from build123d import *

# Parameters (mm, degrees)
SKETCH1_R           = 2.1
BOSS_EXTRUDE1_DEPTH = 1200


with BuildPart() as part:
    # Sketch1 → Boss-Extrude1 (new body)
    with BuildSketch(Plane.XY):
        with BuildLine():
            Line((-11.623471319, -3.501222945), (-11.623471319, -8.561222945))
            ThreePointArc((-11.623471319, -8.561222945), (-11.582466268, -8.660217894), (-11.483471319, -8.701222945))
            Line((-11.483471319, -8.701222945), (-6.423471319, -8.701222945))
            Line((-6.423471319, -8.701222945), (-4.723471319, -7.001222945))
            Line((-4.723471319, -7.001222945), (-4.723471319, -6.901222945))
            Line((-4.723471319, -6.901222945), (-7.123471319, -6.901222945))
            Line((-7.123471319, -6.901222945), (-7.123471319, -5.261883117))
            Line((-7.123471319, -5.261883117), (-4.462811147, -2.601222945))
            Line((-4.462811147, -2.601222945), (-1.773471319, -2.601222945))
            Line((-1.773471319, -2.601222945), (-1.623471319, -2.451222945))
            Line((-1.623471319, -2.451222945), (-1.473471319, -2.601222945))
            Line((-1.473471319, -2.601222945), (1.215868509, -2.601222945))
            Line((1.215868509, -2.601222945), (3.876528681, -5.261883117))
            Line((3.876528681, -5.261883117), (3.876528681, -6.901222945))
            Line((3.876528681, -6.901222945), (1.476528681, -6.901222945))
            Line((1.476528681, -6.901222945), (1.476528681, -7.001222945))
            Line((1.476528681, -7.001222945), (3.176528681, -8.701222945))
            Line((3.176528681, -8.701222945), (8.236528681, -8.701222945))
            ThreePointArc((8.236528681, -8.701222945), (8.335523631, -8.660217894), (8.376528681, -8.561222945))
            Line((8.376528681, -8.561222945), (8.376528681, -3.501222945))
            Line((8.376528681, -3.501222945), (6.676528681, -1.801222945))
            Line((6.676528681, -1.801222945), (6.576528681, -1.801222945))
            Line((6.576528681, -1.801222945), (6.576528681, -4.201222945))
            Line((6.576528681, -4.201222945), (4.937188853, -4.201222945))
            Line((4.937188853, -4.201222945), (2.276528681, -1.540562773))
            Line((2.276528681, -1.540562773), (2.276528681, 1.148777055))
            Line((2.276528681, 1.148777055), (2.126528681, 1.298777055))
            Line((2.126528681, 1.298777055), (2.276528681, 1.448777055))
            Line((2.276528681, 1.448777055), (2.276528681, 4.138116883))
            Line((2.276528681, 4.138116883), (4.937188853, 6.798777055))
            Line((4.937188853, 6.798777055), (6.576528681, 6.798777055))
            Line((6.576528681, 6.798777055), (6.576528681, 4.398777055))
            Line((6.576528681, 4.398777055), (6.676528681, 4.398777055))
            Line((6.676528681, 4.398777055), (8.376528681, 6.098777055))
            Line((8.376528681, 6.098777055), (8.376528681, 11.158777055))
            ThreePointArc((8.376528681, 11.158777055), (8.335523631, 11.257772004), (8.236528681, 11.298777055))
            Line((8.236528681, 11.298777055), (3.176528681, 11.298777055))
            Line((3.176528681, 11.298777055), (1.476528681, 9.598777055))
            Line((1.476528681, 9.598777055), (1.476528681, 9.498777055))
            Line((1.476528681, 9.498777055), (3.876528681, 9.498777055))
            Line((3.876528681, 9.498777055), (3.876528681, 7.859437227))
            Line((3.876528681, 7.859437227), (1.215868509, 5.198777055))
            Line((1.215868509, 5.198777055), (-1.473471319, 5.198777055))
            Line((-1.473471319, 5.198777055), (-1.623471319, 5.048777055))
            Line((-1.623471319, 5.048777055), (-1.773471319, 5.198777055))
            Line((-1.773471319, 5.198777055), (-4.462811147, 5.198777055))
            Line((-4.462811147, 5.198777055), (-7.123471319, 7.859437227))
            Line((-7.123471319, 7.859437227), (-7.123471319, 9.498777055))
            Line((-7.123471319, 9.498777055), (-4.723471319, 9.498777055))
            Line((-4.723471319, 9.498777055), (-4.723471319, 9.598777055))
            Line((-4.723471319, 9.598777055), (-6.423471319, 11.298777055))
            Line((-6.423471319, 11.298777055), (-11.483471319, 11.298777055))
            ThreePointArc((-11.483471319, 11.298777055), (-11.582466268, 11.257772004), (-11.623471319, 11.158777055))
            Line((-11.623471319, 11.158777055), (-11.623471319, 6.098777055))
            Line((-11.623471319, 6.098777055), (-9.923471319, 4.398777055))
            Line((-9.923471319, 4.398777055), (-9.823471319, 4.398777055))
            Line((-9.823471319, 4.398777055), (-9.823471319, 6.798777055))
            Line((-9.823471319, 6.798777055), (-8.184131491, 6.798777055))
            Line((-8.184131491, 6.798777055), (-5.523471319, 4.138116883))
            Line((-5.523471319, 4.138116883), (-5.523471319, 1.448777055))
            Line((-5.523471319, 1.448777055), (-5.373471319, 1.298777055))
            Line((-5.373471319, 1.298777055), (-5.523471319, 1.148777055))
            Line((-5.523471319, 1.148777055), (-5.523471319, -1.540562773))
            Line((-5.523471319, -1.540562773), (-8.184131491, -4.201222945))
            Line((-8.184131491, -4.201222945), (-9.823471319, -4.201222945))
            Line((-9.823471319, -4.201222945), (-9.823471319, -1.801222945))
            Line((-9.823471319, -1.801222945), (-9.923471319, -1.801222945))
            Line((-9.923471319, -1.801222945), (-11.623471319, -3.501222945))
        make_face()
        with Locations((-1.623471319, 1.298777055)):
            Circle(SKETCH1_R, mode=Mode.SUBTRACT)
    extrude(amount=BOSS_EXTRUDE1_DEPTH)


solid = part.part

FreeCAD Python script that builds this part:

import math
import FreeCAD as App
import Part
import Sketcher

V = App.Vector
Q = App.Units.Quantity

doc = App.newDocument("Part")
params = doc.addObject("Spreadsheet::Sheet", "Params")
for row, (alias, value) in enumerate([
    ("sketch1_diameter", "4.2 mm"),
    ("sketch1_radius", "0.14 mm"),
    ("sketch1_width", "2.4 mm"),
    ("sketch1_width2", "0.1 mm"),
    ("sketch1_width3", "5.06 mm"),
    ("pad1_length", "1200 mm"),
], start=1):
    params.set(f"A{row}", alias)
    params.set(f"B{row}", "=" + value)
    params.setAlias(f"B{row}", alias)

body = doc.addObject("PartDesign::Body", "Body")

# Sketch on XY plane
sketch1 = body.newObject("Sketcher::SketchObject", "Sketch")
sketch1.AttachmentSupport = (doc.getObject("XY_Plane"), [""])
sketch1.MapMode = "FlatFace"
sketch1.addGeometry(Part.LineSegment(V(-11.623471, -3.501223, 0), V(-11.623471, -8.561223, 0)), False)
sketch1.addGeometry(Part.ArcOfCircle(Part.Circle(V(-11.483471, -8.561223, 0), V(0, 0, 1), 0.14), math.radians(-180), math.radians(-90)), False)
sketch1.addGeometry(Part.LineSegment(V(-11.483471, -8.701223, 0), V(-6.423471, -8.701223, 0)), False)
sketch1.addGeometry(Part.LineSegment(V(-6.423471, -8.701223, 0), V(-4.723471, -7.001223, 0)), False)
sketch1.addGeometry(Part.LineSegment(V(-4.723471, -7.001223, 0), V(-4.723471, -6.901223, 0)), False)
sketch1.addGeometry(Part.LineSegment(V(-4.723471, -6.901223, 0), V(-7.123471, -6.901223, 0)), False)
sketch1.addGeometry(Part.LineSegment(V(-7.123471, -6.901223, 0), V(-7.123471, -5.261883, 0)), False)
sketch1.addGeometry(Part.LineSegment(V(-7.123471, -5.261883, 0), V(-4.462811, -2.601223, 0)), False)
sketch1.addGeometry(Part.LineSegment(V(-4.462811, -2.601223, 0), V(-1.773471, -2.601223, 0)), False)
sketch1.addGeometry(Part.LineSegment(V(-1.773471, -2.601223, 0), V(-1.623471, -2.451223, 0)), False)
sketch1.addGeometry(Part.LineSegment(V(-1.623471, -2.451223, 0), V(-1.473471, -2.601223, 0)), False)
sketch1.addGeometry(Part.LineSegment(V(-1.473471, -2.601223, 0), V(1.215869, -2.601223, 0)), False)
sketch1.addGeometry(Part.LineSegment(V(1.215869, -2.601223, 0), V(3.876529, -5.261883, 0)), False)
sketch1.addGeometry(Part.LineSegment(V(3.876529, -5.261883, 0), V(3.876529, -6.901223, 0)), False)
sketch1.addGeometry(Part.LineSegment(V(3.876529, -6.901223, 0), V(1.476529, -6.901223, 0)), False)
sketch1.addGeometry(Part.LineSegment(V(1.476529, -6.901223, 0), V(1.476529, -7.001223, 0)), False)
sketch1.addGeometry(Part.LineSegment(V(1.476529, -7.001223, 0), V(3.176529, -8.701223, 0)), False)
sketch1.addGeometry(Part.LineSegment(V(3.176529, -8.701223, 0), V(8.236529, -8.701223, 0)), False)
sketch1.addGeometry(Part.ArcOfCircle(Part.Circle(V(8.236529, -8.561223, 0), V(0, 0, 1), 0.14), math.radians(-90), math.radians(0)), False)
sketch1.addGeometry(Part.LineSegment(V(8.376529, -8.561223, 0), V(8.376529, -3.501223, 0)), False)
sketch1.addGeometry(Part.LineSegment(V(8.376529, -3.501223, 0), V(6.676529, -1.801223, 0)), False)
sketch1.addGeometry(Part.LineSegment(V(6.676529, -1.801223, 0), V(6.576529, -1.801223, 0)), False)
sketch1.addGeometry(Part.LineSegment(V(6.576529, -1.801223, 0), V(6.576529, -4.201223, 0)), False)
sketch1.addGeometry(Part.LineSegment(V(6.576529, -4.201223, 0), V(4.937189, -4.201223, 0)), False)
sketch1.addGeometry(Part.LineSegment(V(4.937189, -4.201223, 0), V(2.276529, -1.540563, 0)), False)
sketch1.addGeometry(Part.LineSegment(V(2.276529, -1.540563, 0), V(2.276529, 1.148777, 0)), False)
sketch1.addGeometry(Part.LineSegment(V(2.276529, 1.148777, 0), V(2.126529, 1.298777, 0)), False)
sketch1.addGeometry(Part.LineSegment(V(2.126529, 1.298777, 0), V(2.276529, 1.448777, 0)), False)
sketch1.addGeometry(Part.LineSegment(V(2.276529, 1.448777, 0), V(2.276529, 4.138117, 0)), False)
sketch1.addGeometry(Part.LineSegment(V(2.276529, 4.138117, 0), V(4.937189, 6.798777, 0)), False)
sketch1.addGeometry(Part.LineSegment(V(4.937189, 6.798777, 0), V(6.576529, 6.798777, 0)), False)
sketch1.addGeometry(Part.LineSegment(V(6.576529, 6.798777, 0), V(6.576529, 4.398777, 0)), False)
sketch1.addGeometry(Part.LineSegment(V(6.576529, 4.398777, 0), V(6.676529, 4.398777, 0)), False)
sketch1.addGeometry(Part.LineSegment(V(6.676529, 4.398777, 0), V(8.376529, 6.098777, 0)), False)
sketch1.addGeometry(Part.LineSegment(V(8.376529, 6.098777, 0), V(8.376529, 11.158777, 0)), False)
sketch1.addGeometry(Part.ArcOfCircle(Part.Circle(V(8.236529, 11.158777, 0), V(0, 0, 1), 0.14), math.radians(0), math.radians(90)), False)
sketch1.addGeometry(Part.LineSegment(V(8.236529, 11.298777, 0), V(3.176529, 11.298777, 0)), False)
sketch1.addGeometry(Part.LineSegment(V(3.176529, 11.298777, 0), V(1.476529, 9.598777, 0)), False)
sketch1.addGeometry(Part.LineSegment(V(1.476529, 9.598777, 0), V(1.476529, 9.498777, 0)), False)
sketch1.addGeometry(Part.LineSegment(V(1.476529, 9.498777, 0), V(3.876529, 9.498777, 0)), False)
sketch1.addGeometry(Part.LineSegment(V(3.876529, 9.498777, 0), V(3.876529, 7.859437, 0)), False)
sketch1.addGeometry(Part.LineSegment(V(3.876529, 7.859437, 0), V(1.215869, 5.198777, 0)), False)
sketch1.addGeometry(Part.LineSegment(V(1.215869, 5.198777, 0), V(-1.473471, 5.198777, 0)), False)
sketch1.addGeometry(Part.LineSegment(V(-1.473471, 5.198777, 0), V(-1.623471, 5.048777, 0)), False)
sketch1.addGeometry(Part.LineSegment(V(-1.623471, 5.048777, 0), V(-1.773471, 5.198777, 0)), False)
sketch1.addGeometry(Part.LineSegment(V(-1.773471, 5.198777, 0), V(-4.462811, 5.198777, 0)), False)
sketch1.addGeometry(Part.LineSegment(V(-4.462811, 5.198777, 0), V(-7.123471, 7.859437, 0)), False)
sketch1.addGeometry(Part.LineSegment(V(-7.123471, 7.859437, 0), V(-7.123471, 9.498777, 0)), False)
sketch1.addGeometry(Part.LineSegment(V(-7.123471, 9.498777, 0), V(-4.723471, 9.498777, 0)), False)
sketch1.addGeometry(Part.LineSegment(V(-4.723471, 9.498777, 0), V(-4.723471, 9.598777, 0)), False)
sketch1.addGeometry(Part.LineSegment(V(-4.723471, 9.598777, 0), V(-6.423471, 11.298777, 0)), False)
sketch1.addGeometry(Part.LineSegment(V(-6.423471, 11.298777, 0), V(-11.483471, 11.298777, 0)), False)
sketch1.addGeometry(Part.ArcOfCircle(Part.Circle(V(-11.483471, 11.158777, 0), V(0, 0, 1), 0.14), math.radians(90), math.radians(180)), False)
sketch1.addGeometry(Part.LineSegment(V(-11.623471, 11.158777, 0), V(-11.623471, 6.098777, 0)), False)
sketch1.addGeometry(Part.LineSegment(V(-11.623471, 6.098777, 0), V(-9.923471, 4.398777, 0)), False)
sketch1.addGeometry(Part.LineSegment(V(-9.923471, 4.398777, 0), V(-9.823471, 4.398777, 0)), False)
sketch1.addGeometry(Part.LineSegment(V(-9.823471, 4.398777, 0), V(-9.823471, 6.798777, 0)), False)
sketch1.addGeometry(Part.LineSegment(V(-9.823471, 6.798777, 0), V(-8.184131, 6.798777, 0)), False)
sketch1.addGeometry(Part.LineSegment(V(-8.184131, 6.798777, 0), V(-5.523471, 4.138117, 0)), False)
sketch1.addGeometry(Part.LineSegment(V(-5.523471, 4.138117, 0), V(-5.523471, 1.448777, 0)), False)
sketch1.addGeometry(Part.LineSegment(V(-5.523471, 1.448777, 0), V(-5.373471, 1.298777, 0)), False)
sketch1.addGeometry(Part.LineSegment(V(-5.373471, 1.298777, 0), V(-5.523471, 1.148777, 0)), False)
sketch1.addGeometry(Part.LineSegment(V(-5.523471, 1.148777, 0), V(-5.523471, -1.540563, 0)), False)
sketch1.addGeometry(Part.LineSegment(V(-5.523471, -1.540563, 0), V(-8.184131, -4.201223, 0)), False)
sketch1.addGeometry(Part.LineSegment(V(-8.184131, -4.201223, 0), V(-9.823471, -4.201223, 0)), False)
sketch1.addGeometry(Part.LineSegment(V(-9.823471, -4.201223, 0), V(-9.823471, -1.801223, 0)), False)
sketch1.addGeometry(Part.LineSegment(V(-9.823471, -1.801223, 0), V(-9.923471, -1.801223, 0)), False)
sketch1.addGeometry(Part.LineSegment(V(-9.923471, -1.801223, 0), V(-11.623471, -3.501223, 0)), False)
sketch1.addGeometry(Part.Circle(V(-1.623471, 1.298777, 0), V(0, 0, 1), 2.1), False)
sketch1.addConstraint(Sketcher.Constraint("Tangent", 0, 2, 1, 1))
sketch1.addConstraint(Sketcher.Constraint("Tangent", 1, 2, 2, 1))
sketch1.addConstraint(Sketcher.Constraint("Coincident", 2, 2, 3, 1))
sketch1.addConstraint(Sketcher.Constraint("Coincident", 3, 2, 4, 1))
sketch1.addConstraint(Sketcher.Constraint("Coincident", 4, 2, 5, 1))
sketch1.addConstraint(Sketcher.Constraint("Coincident", 5, 2, 6, 1))
sketch1.addConstraint(Sketcher.Constraint("Coincident", 6, 2, 7, 1))
sketch1.addConstraint(Sketcher.Constraint("Coincident", 7, 2, 8, 1))
sketch1.addConstraint(Sketcher.Constraint("Coincident", 8, 2, 9, 1))
sketch1.addConstraint(Sketcher.Constraint("Coincident", 9, 2, 10, 1))
sketch1.addConstraint(Sketcher.Constraint("Coincident", 10, 2, 11, 1))
sketch1.addConstraint(Sketcher.Constraint("Coincident", 11, 2, 12, 1))
sketch1.addConstraint(Sketcher.Constraint("Coincident", 12, 2, 13, 1))
sketch1.addConstraint(Sketcher.Constraint("Coincident", 13, 2, 14, 1))
sketch1.addConstraint(Sketcher.Constraint("Coincident", 14, 2, 15, 1))
sketch1.addConstraint(Sketcher.Constraint("Coincident", 15, 2, 16, 1))
sketch1.addConstraint(Sketcher.Constraint("Coincident", 16, 2, 17, 1))
sketch1.addConstraint(Sketcher.Constraint("Tangent", 17, 2, 18, 1))
sketch1.addConstraint(Sketcher.Constraint("Tangent", 18, 2, 19, 1))
sketch1.addConstraint(Sketcher.Constraint("Coincident", 19, 2, 20, 1))
sketch1.addConstraint(Sketcher.Constraint("Coincident", 20, 2, 21, 1))
sketch1.addConstraint(Sketcher.Constraint("Coincident", 21, 2, 22, 1))
sketch1.addConstraint(Sketcher.Constraint("Coincident", 22, 2, 23, 1))
sketch1.addConstraint(Sketcher.Constraint("Coincident", 23, 2, 24, 1))
sketch1.addConstraint(Sketcher.Constraint("Coincident", 24, 2, 25, 1))
sketch1.addConstraint(Sketcher.Constraint("Coincident", 25, 2, 26, 1))
sketch1.addConstraint(Sketcher.Constraint("Coincident", 26, 2, 27, 1))
sketch1.addConstraint(Sketcher.Constraint("Coincident", 27, 2, 28, 1))
sketch1.addConstraint(Sketcher.Constraint("Coincident", 28, 2, 29, 1))
sketch1.addConstraint(Sketcher.Constraint("Coincident", 29, 2, 30, 1))
sketch1.addConstraint(Sketcher.Constraint("Coincident", 30, 2, 31, 1))
sketch1.addConstraint(Sketcher.Constraint("Coincident", 31, 2, 32, 1))
sketch1.addConstraint(Sketcher.Constraint("Coincident", 32, 2, 33, 1))
sketch1.addConstraint(Sketcher.Constraint("Coincident", 33, 2, 34, 1))
sketch1.addConstraint(Sketcher.Constraint("Tangent", 34, 2, 35, 1))
sketch1.addConstraint(Sketcher.Constraint("Tangent", 35, 2, 36, 1))
sketch1.addConstraint(Sketcher.Constraint("Coincident", 36, 2, 37, 1))
sketch1.addConstraint(Sketcher.Constraint("Coincident", 37, 2, 38, 1))
sketch1.addConstraint(Sketcher.Constraint("Coincident", 38, 2, 39, 1))
sketch1.addConstraint(Sketcher.Constraint("Coincident", 39, 2, 40, 1))
sketch1.addConstraint(Sketcher.Constraint("Coincident", 40, 2, 41, 1))
sketch1.addConstraint(Sketcher.Constraint("Coincident", 41, 2, 42, 1))
sketch1.addConstraint(Sketcher.Constraint("Coincident", 42, 2, 43, 1))
sketch1.addConstraint(Sketcher.Constraint("Coincident", 43, 2, 44, 1))
sketch1.addConstraint(Sketcher.Constraint("Coincident", 44, 2, 45, 1))
sketch1.addConstraint(Sketcher.Constraint("Coincident", 45, 2, 46, 1))
sketch1.addConstraint(Sketcher.Constraint("Coincident", 46, 2, 47, 1))
sketch1.addConstraint(Sketcher.Constraint("Coincident", 47, 2, 48, 1))
sketch1.addConstraint(Sketcher.Constraint("Coincident", 48, 2, 49, 1))
sketch1.addConstraint(Sketcher.Constraint("Coincident", 49, 2, 50, 1))
sketch1.addConstraint(Sketcher.Constraint("Coincident", 50, 2, 51, 1))
sketch1.addConstraint(Sketcher.Constraint("Tangent", 51, 2, 52, 1))
sketch1.addConstraint(Sketcher.Constraint("Tangent", 52, 2, 53, 1))
sketch1.addConstraint(Sketcher.Constraint("Coincident", 53, 2, 54, 1))
sketch1.addConstraint(Sketcher.Constraint("Coincident", 54, 2, 55, 1))
sketch1.addConstraint(Sketcher.Constraint("Coincident", 55, 2, 56, 1))
sketch1.addConstraint(Sketcher.Constraint("Coincident", 56, 2, 57, 1))
sketch1.addConstraint(Sketcher.Constraint("Coincident", 57, 2, 58, 1))
sketch1.addConstraint(Sketcher.Constraint("Coincident", 58, 2, 59, 1))
sketch1.addConstraint(Sketcher.Constraint("Coincident", 59, 2, 60, 1))
sketch1.addConstraint(Sketcher.Constraint("Coincident", 60, 2, 61, 1))
sketch1.addConstraint(Sketcher.Constraint("Coincident", 61, 2, 62, 1))
sketch1.addConstraint(Sketcher.Constraint("Coincident", 62, 2, 63, 1))
sketch1.addConstraint(Sketcher.Constraint("Coincident", 63, 2, 64, 1))
sketch1.addConstraint(Sketcher.Constraint("Coincident", 64, 2, 65, 1))
sketch1.addConstraint(Sketcher.Constraint("Coincident", 65, 2, 66, 1))
sketch1.addConstraint(Sketcher.Constraint("Coincident", 66, 2, 67, 1))
sketch1.addConstraint(Sketcher.Constraint("Coincident", 67, 2, 0, 1))
sketch1.addConstraint(Sketcher.Constraint("Vertical", 0))
sketch1.addConstraint(Sketcher.Constraint("Horizontal", 2))
sketch1.addConstraint(Sketcher.Constraint("Vertical", 4))
sketch1.addConstraint(Sketcher.Constraint("Horizontal", 5))
sketch1.addConstraint(Sketcher.Constraint("Vertical", 6))
sketch1.addConstraint(Sketcher.Constraint("Horizontal", 8))
sketch1.addConstraint(Sketcher.Constraint("Horizontal", 11))
sketch1.addConstraint(Sketcher.Constraint("Vertical", 13))
sketch1.addConstraint(Sketcher.Constraint("Horizontal", 14))
sketch1.addConstraint(Sketcher.Constraint("Vertical", 15))
sketch1.addConstraint(Sketcher.Constraint("Horizontal", 17))
sketch1.addConstraint(Sketcher.Constraint("Vertical", 19))
sketch1.addConstraint(Sketcher.Constraint("Horizontal", 21))
sketch1.addConstraint(Sketcher.Constraint("Vertical", 22))
sketch1.addConstraint(Sketcher.Constraint("Horizontal", 23))
sketch1.addConstraint(Sketcher.Constraint("Vertical", 25))
sketch1.addConstraint(Sketcher.Constraint("Vertical", 28))
sketch1.addConstraint(Sketcher.Constraint("Horizontal", 30))
sketch1.addConstraint(Sketcher.Constraint("Vertical", 31))
sketch1.addConstraint(Sketcher.Constraint("Horizontal", 32))
sketch1.addConstraint(Sketcher.Constraint("Vertical", 34))
sketch1.addConstraint(Sketcher.Constraint("Horizontal", 36))
sketch1.addConstraint(Sketcher.Constraint("Vertical", 38))
sketch1.addConstraint(Sketcher.Constraint("Horizontal", 39))
sketch1.addConstraint(Sketcher.Constraint("Vertical", 40))
sketch1.addConstraint(Sketcher.Constraint("Horizontal", 42))
sketch1.addConstraint(Sketcher.Constraint("Horizontal", 45))
sketch1.addConstraint(Sketcher.Constraint("Vertical", 47))
sketch1.addConstraint(Sketcher.Constraint("Horizontal", 48))
sketch1.addConstraint(Sketcher.Constraint("Vertical", 49))
sketch1.addConstraint(Sketcher.Constraint("Horizontal", 51))
sketch1.addConstraint(Sketcher.Constraint("Vertical", 53))
sketch1.addConstraint(Sketcher.Constraint("Horizontal", 55))
sketch1.addConstraint(Sketcher.Constraint("Vertical", 56))
sketch1.addConstraint(Sketcher.Constraint("Horizontal", 57))
sketch1.addConstraint(Sketcher.Constraint("Vertical", 59))
sketch1.addConstraint(Sketcher.Constraint("Vertical", 62))
sketch1.addConstraint(Sketcher.Constraint("Horizontal", 64))
sketch1.addConstraint(Sketcher.Constraint("Vertical", 65))
sketch1.addConstraint(Sketcher.Constraint("Horizontal", 66))
sketch1.addConstraint(Sketcher.Constraint("Equal", 1, 18))
sketch1.addConstraint(Sketcher.Constraint("Equal", 18, 35))
sketch1.addConstraint(Sketcher.Constraint("Equal", 35, 52))
sketch1.addConstraint(Sketcher.Constraint("Parallel", 3, 7))
sketch1.addConstraint(Sketcher.Constraint("Parallel", 7, 9))
sketch1.addConstraint(Sketcher.Constraint("Perpendicular", 9, 10))
sketch1.addConstraint(Sketcher.Constraint("Parallel", 10, 12))
sketch1.addConstraint(Sketcher.Constraint("Parallel", 12, 16))
sketch1.addConstraint(Sketcher.Constraint("Parallel", 16, 20))
sketch1.addConstraint(Sketcher.Constraint("Parallel", 20, 24))
sketch1.addConstraint(Sketcher.Constraint("Parallel", 24, 26))
sketch1.addConstraint(Sketcher.Constraint("Perpendicular", 26, 27))
sketch1.addConstraint(Sketcher.Constraint("Parallel", 27, 29))
sketch1.addConstraint(Sketcher.Constraint("Parallel", 29, 33))
sketch1.addConstraint(Sketcher.Constraint("Parallel", 33, 37))
sketch1.addConstraint(Sketcher.Constraint("Parallel", 37, 41))
sketch1.addConstraint(Sketcher.Constraint("Parallel", 41, 43))
sketch1.addConstraint(Sketcher.Constraint("Perpendicular", 43, 44))
sketch1.addConstraint(Sketcher.Constraint("Parallel", 44, 46))
sketch1.addConstraint(Sketcher.Constraint("Parallel", 46, 50))
sketch1.addConstraint(Sketcher.Constraint("Parallel", 50, 54))
sketch1.addConstraint(Sketcher.Constraint("Parallel", 54, 58))
sketch1.addConstraint(Sketcher.Constraint("Parallel", 58, 60))
sketch1.addConstraint(Sketcher.Constraint("Perpendicular", 60, 61))
sketch1.addConstraint(Sketcher.Constraint("Parallel", 61, 63))
sketch1.addConstraint(Sketcher.Constraint("Parallel", 63, 67))
sketch1.addConstraint(Sketcher.Constraint("Horizontal", 1, 3, 18, 3))
sketch1.addConstraint(Sketcher.Constraint("Horizontal", 35, 3, 52, 3))
sketch1.addConstraint(Sketcher.Constraint("Horizontal", 8, 2, 10, 2))
sketch1.addConstraint(Sketcher.Constraint("Horizontal", 6, 2, 12, 2))
sketch1.addConstraint(Sketcher.Constraint("Horizontal", 5, 2, 13, 2))
sketch1.addConstraint(Sketcher.Constraint("Horizontal", 3, 2, 15, 2))
sketch1.addConstraint(Sketcher.Constraint("Horizontal", 68, 3, 26, 2))
sketch1.addConstraint(Sketcher.Constraint("Horizontal", 42, 2, 44, 2))
sketch1.addConstraint(Sketcher.Constraint("Horizontal", 40, 2, 46, 2))
sketch1.addConstraint(Sketcher.Constraint("Horizontal", 39, 2, 47, 2))
sketch1.addConstraint(Sketcher.Constraint("Horizontal", 37, 2, 49, 2))
sketch1.addConstraint(Sketcher.Constraint("Horizontal", 33, 2, 53, 2))
sketch1.addConstraint(Sketcher.Constraint("Horizontal", 32, 2, 54, 2))
sketch1.addConstraint(Sketcher.Constraint("Horizontal", 30, 2, 56, 2))
sketch1.addConstraint(Sketcher.Constraint("Horizontal", 28, 2, 58, 2))
sketch1.addConstraint(Sketcher.Constraint("Horizontal", 27, 2, 59, 2))
sketch1.addConstraint(Sketcher.Constraint("Horizontal", 26, 2, 60, 2))
sketch1.addConstraint(Sketcher.Constraint("Horizontal", 25, 2, 61, 2))
sketch1.addConstraint(Sketcher.Constraint("Horizontal", 24, 2, 62, 2))
sketch1.addConstraint(Sketcher.Constraint("Horizontal", 23, 2, 63, 2))
sketch1.addConstraint(Sketcher.Constraint("Horizontal", 21, 2, 65, 2))
sketch1.addConstraint(Sketcher.Constraint("Horizontal", 19, 2, 67, 2))
sketch1.addConstraint(Sketcher.Constraint("Vertical", 18, 3, 35, 3))
sketch1.addConstraint(Sketcher.Constraint("Vertical", 1, 3, 52, 3))
sketch1.addConstraint(Sketcher.Constraint("Vertical", 68, 3, 9, 2))
sketch1.addConstraint(Sketcher.Constraint("Vertical", 25, 2, 27, 2))
sketch1.addConstraint(Sketcher.Constraint("Vertical", 23, 2, 29, 2))
sketch1.addConstraint(Sketcher.Constraint("Vertical", 22, 2, 30, 2))
sketch1.addConstraint(Sketcher.Constraint("Vertical", 20, 2, 32, 2))
sketch1.addConstraint(Sketcher.Constraint("Vertical", 16, 2, 36, 2))
sketch1.addConstraint(Sketcher.Constraint("Vertical", 15, 2, 37, 2))
sketch1.addConstraint(Sketcher.Constraint("Vertical", 13, 2, 39, 2))
sketch1.addConstraint(Sketcher.Constraint("Vertical", 11, 2, 41, 2))
sketch1.addConstraint(Sketcher.Constraint("Vertical", 10, 2, 42, 2))
sketch1.addConstraint(Sketcher.Constraint("Vertical", 9, 2, 43, 2))
sketch1.addConstraint(Sketcher.Constraint("Vertical", 8, 2, 44, 2))
sketch1.addConstraint(Sketcher.Constraint("Vertical", 7, 2, 45, 2))
sketch1.addConstraint(Sketcher.Constraint("Vertical", 4, 2, 48, 2))
sketch1.addConstraint(Sketcher.Constraint("Vertical", 56, 2, 64, 2))
sketch1.addConstraint(Sketcher.Constraint("Equal", 8, 11))
sketch1.addConstraint(Sketcher.Constraint("Equal", 5, 14))
sketch1.addConstraint(Sketcher.Constraint("Equal", 2, 17))
sketch1.addConstraint(Sketcher.Constraint("Equal", 32, 55))
sketch1.addConstraint(Sketcher.Constraint("Equal", 30, 57))
sketch1.addConstraint(Sketcher.Constraint("Equal", 51, 0))
sketch1.addConstraint(Sketcher.Constraint("Equal", 66, 4))
sketch1.addConstraint(Sketcher.Constraint("Equal", 64, 6))
sketch1.addConstraint(Sketcher.Constraint("Equal", 48, 22))
sketch1.addConstraint(Sketcher.Constraint("Equal", 45, 25))
sketch1.addConstraint(Sketcher.Constraint("Equal", 25, 28))
sketch1.addConstraint(Sketcher.Constraint("Equal", 22, 31))
sketch1.addConstraint(Sketcher.Constraint("Equal", 19, 34))
sketch1.addConstraint(Sketcher.Constraint("Equal", 15, 38))
sketch1.addConstraint(Sketcher.Constraint("Equal", 13, 40))
sketch1.addConstraint(Sketcher.Constraint("Equal", 16, 20))
sketch1.addConstraint(Sketcher.Constraint("Equal", 12, 24))
sketch1.addConstraint(Sketcher.Constraint("Equal", 10, 26))
sketch1.addConstraint(Sketcher.Constraint("Diameter", 68, Q("4.2 mm")))
sketch1.addConstraint(Sketcher.Constraint("Radius", 1, Q("0.14 mm")))
sketch1.addConstraint(Sketcher.Constraint("DistanceX", 5, 2, 5, 1, Q("2.4 mm")))
sketch1.addConstraint(Sketcher.Constraint("DistanceX", 21, 2, 21, 1, Q("0.1 mm")))
sketch1.addConstraint(Sketcher.Constraint("DistanceX", 2, 1, 2, 2, Q("5.06 mm")))
sketch1.addConstraint(Sketcher.Constraint("DistanceX", 8, 1, 8, 2, Q("2.68934 mm")))
sketch1.addConstraint(Sketcher.Constraint("DistanceX", 23, 2, 23, 1, Q("1.63934 mm")))
sketch1.addConstraint(Sketcher.Constraint("Distance", 7, Q("3.762742 mm")))
sketch1.addConstraint(Sketcher.Constraint("DistanceX", 1, 3, -1, 1, Q("11.483471 mm")))
sketch1.addConstraint(Sketcher.Constraint("DistanceX", -1, 1, 18, 3, Q("8.236529 mm")))
sketch1.addConstraint(Sketcher.Constraint("DistanceX", 3, 2, -1, 1, Q("4.723471 mm")))
sketch1.addConstraint(Sketcher.Constraint("DistanceY", 1, 3, -1, 1, Q("8.561223 mm")))
sketch1.setExpression("Constraints[191]", "Params.sketch1_diameter")
sketch1.setExpression("Constraints[192]", "Params.sketch1_radius")
sketch1.setExpression("Constraints[193]", "Params.sketch1_width")
sketch1.setExpression("Constraints[194]", "Params.sketch1_width2")
sketch1.setExpression("Constraints[195]", "Params.sketch1_width3")
pad1 = body.newObject("PartDesign::Pad", "Pad")
pad1.Profile = sketch1
pad1.setExpression("Length", "Params.pad1_length")

doc.recompute()
